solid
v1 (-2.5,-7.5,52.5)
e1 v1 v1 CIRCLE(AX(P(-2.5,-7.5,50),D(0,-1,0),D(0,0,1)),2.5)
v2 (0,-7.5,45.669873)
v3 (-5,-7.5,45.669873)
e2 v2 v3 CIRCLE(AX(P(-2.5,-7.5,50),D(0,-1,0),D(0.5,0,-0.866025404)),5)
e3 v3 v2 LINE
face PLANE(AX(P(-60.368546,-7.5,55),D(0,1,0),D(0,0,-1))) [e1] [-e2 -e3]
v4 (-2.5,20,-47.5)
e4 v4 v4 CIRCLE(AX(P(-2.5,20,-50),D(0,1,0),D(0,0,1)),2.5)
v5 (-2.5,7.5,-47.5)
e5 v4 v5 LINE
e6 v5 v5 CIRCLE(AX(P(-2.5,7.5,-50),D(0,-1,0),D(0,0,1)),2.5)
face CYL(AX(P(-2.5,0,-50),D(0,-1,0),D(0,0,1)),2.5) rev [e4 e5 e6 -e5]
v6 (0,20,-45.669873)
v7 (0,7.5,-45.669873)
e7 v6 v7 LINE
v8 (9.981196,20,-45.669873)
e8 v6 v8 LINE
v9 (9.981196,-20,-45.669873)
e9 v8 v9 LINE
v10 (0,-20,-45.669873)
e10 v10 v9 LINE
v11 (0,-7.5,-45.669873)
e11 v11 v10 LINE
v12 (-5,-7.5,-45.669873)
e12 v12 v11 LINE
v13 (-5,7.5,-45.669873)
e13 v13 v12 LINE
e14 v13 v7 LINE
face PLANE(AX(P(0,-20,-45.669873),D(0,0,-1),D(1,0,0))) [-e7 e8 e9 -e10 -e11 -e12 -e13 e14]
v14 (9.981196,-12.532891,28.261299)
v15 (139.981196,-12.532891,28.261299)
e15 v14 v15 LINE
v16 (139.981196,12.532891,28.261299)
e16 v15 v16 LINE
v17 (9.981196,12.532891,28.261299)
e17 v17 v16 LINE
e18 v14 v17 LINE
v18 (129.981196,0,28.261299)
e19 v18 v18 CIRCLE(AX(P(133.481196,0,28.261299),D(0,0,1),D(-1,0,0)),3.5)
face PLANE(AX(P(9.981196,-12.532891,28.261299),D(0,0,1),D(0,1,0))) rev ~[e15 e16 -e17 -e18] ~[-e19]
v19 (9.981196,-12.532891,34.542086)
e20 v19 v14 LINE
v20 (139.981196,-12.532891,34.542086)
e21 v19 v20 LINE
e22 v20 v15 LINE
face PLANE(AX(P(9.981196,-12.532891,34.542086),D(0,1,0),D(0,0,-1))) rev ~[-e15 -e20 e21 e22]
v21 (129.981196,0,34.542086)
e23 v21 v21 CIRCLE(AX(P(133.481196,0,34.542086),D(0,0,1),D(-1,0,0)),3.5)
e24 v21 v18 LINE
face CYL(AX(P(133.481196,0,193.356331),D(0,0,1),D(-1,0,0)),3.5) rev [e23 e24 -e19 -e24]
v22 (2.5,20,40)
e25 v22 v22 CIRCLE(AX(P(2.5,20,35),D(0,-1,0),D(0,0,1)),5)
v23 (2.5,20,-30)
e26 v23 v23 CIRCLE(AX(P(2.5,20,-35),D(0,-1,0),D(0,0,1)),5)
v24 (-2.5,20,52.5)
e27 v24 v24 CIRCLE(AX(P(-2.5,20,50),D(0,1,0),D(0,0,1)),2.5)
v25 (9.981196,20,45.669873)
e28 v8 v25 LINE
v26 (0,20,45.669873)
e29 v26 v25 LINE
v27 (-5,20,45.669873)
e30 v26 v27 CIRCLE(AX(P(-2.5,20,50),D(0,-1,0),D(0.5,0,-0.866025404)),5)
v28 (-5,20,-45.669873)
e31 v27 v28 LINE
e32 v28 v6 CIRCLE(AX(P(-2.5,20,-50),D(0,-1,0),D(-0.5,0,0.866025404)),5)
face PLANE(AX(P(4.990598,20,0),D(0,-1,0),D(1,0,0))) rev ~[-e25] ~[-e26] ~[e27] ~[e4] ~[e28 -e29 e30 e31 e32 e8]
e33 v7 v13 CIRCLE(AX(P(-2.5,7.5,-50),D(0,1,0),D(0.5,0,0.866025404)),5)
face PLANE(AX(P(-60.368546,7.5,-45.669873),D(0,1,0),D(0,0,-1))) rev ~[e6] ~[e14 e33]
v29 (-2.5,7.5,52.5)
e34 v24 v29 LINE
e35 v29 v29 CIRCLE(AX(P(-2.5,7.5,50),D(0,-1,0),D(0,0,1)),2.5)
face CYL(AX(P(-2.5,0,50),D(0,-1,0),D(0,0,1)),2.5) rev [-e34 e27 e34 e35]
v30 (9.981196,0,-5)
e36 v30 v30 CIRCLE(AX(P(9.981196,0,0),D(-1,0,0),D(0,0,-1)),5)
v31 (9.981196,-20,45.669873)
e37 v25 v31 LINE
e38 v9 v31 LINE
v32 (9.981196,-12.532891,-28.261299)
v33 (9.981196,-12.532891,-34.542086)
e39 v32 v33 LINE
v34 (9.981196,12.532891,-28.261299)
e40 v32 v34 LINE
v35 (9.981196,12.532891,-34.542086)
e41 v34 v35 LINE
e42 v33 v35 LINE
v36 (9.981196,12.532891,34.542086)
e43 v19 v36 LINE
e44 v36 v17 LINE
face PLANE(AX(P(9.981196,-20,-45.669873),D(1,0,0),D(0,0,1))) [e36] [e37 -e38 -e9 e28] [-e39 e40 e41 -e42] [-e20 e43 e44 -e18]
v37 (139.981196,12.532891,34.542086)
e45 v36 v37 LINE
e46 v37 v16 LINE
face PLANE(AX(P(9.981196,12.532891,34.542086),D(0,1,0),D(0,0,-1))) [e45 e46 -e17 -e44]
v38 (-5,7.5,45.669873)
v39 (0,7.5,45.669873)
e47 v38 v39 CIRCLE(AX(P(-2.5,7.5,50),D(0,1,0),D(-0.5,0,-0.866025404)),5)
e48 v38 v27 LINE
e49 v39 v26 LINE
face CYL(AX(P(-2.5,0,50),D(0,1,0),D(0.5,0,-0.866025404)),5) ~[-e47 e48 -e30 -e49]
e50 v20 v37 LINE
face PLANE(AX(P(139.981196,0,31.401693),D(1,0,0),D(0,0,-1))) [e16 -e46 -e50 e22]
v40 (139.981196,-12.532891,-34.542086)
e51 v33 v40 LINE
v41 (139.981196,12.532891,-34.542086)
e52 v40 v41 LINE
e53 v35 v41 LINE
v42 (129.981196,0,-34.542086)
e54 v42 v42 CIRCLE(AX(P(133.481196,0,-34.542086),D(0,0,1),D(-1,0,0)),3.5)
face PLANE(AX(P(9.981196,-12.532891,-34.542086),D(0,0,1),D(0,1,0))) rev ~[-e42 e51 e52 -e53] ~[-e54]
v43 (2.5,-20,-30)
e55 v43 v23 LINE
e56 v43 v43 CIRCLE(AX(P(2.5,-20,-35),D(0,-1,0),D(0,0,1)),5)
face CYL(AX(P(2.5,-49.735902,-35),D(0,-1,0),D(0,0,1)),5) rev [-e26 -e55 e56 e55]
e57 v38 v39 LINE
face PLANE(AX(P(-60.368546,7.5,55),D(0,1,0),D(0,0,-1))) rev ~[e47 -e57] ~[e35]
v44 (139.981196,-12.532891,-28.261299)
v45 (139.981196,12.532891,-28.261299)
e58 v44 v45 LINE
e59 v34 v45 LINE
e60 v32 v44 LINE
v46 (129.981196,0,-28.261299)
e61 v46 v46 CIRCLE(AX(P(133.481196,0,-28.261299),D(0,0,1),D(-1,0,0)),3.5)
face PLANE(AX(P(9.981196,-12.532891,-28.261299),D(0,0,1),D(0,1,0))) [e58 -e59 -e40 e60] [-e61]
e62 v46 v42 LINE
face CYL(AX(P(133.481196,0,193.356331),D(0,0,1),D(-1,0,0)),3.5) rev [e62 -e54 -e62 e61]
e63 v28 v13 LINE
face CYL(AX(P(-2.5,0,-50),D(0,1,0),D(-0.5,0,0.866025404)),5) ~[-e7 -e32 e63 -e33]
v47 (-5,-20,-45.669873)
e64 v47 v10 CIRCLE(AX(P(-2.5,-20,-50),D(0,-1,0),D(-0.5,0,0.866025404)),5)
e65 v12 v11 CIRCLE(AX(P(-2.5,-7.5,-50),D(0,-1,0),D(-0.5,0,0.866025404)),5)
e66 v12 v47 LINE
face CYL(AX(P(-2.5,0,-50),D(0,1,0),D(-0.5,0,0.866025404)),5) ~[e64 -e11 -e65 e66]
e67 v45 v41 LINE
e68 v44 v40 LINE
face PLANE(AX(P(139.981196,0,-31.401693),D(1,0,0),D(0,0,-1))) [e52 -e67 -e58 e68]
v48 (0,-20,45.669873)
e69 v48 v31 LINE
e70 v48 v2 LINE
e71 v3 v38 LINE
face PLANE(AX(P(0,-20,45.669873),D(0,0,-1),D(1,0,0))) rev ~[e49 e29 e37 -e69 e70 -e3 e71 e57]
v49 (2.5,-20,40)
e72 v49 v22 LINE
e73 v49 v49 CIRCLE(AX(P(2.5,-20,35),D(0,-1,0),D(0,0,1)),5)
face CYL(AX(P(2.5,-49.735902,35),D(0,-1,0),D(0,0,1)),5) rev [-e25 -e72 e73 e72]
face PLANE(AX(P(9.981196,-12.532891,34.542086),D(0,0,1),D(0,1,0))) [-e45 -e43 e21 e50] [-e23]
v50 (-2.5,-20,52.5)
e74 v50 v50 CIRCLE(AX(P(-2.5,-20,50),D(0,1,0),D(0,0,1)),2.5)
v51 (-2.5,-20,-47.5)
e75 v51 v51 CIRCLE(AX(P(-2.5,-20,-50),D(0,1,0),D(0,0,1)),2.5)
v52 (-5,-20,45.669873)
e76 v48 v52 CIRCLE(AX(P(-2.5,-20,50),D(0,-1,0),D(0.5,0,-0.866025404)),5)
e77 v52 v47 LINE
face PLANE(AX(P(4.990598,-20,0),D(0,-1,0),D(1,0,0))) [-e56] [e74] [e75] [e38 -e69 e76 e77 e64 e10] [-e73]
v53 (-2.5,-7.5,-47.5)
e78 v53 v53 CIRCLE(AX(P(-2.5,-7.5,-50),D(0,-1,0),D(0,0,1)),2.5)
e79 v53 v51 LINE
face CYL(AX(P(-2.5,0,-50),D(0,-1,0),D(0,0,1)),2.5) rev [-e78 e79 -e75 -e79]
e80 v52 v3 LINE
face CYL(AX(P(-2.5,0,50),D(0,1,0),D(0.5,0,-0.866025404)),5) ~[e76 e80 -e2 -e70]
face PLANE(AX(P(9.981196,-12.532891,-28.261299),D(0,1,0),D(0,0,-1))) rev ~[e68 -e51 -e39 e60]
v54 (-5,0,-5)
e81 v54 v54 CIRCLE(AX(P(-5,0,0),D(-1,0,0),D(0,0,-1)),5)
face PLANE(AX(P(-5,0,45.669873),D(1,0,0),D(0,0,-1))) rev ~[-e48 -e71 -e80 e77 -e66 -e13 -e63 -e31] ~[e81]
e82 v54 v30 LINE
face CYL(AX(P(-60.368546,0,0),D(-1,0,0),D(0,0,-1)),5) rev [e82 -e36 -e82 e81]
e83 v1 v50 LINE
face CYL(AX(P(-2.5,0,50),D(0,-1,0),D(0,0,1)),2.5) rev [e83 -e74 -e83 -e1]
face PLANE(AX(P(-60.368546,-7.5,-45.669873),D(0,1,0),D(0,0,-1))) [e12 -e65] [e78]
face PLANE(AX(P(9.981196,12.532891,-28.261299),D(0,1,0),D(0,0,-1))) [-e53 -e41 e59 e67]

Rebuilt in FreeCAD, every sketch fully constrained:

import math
import FreeCAD as App
import Part
import Sketcher
from FreeCAD import Vector


def add_polygon(sketch, points):
    """Adds a closed chain of lines whose ends are joined by coincident constraints."""
    first, n = sketch.GeometryCount, len(points)
    for a, b in zip(points, points[1:] + points[:1]):
        sketch.addGeometry(Part.LineSegment(App.Vector(*a, 0), App.Vector(*b, 0)), False)
    for i in range(n):
        sketch.addConstraint(Sketcher.Constraint("Coincident", first + i, 2, first + (i + 1) % n, 1))

doc = App.newDocument("Part")
body = doc.addObject("PartDesign::Body", "Body")

# Sketch on XZ plane
sketch1 = body.newObject("Sketcher::SketchObject", "Sketch")
sketch1.AttachmentSupport = (doc.getObject("XZ_Plane"), [""])
sketch1.MapMode = "FlatFace"
sketch1.addGeometry([
    Part.LineSegment(Vector(-5, -45.669873, 0), Vector(-5, 45.669873, 0)),  # 0
    Part.ArcOfCircle(Part.Circle(Vector(-2.5, 50, 0), Vector(0, 0, 1), 5), math.radians(-60), math.radians(240)),  # 1
    Part.LineSegment(Vector(0, 45.669873, 0), Vector(0, -45.669873, 0)),  # 2
    Part.ArcOfCircle(Part.Circle(Vector(-2.5, -50, 0), Vector(0, 0, 1), 5), math.radians(120), math.radians(420)),  # 3
    Part.Circle(Vector(-2.5, 50, 0), Vector(0, 0, 1), 2.5),  # 4
    Part.Circle(Vector(-2.5, -50, 0), Vector(0, 0, 1), 2.5),  # 5
], False)
sketch1.addConstraint([
    Sketcher.Constraint("Coincident", 0, 2, 1, 2),
    Sketcher.Constraint("Coincident", 1, 1, 2, 1),
    Sketcher.Constraint("Coincident", 2, 2, 3, 2),
    Sketcher.Constraint("Coincident", 3, 1, 0, 1),
    Sketcher.Constraint("Vertical", 0),
    Sketcher.Constraint("Vertical", 2),
    Sketcher.Constraint("Coincident", 4, 3, 1, 3),
    Sketcher.Constraint("Coincident", 5, 3, 3, 3),
    Sketcher.Constraint("Equal", 1, 3),
    Sketcher.Constraint("Equal", 4, 5),
    Sketcher.Constraint("Symmetric", 1, 1, 2, 2, -1, 1),
    Sketcher.Constraint("Horizontal", 0, 2, 1, 1),
    Sketcher.Constraint("Horizontal", 2, 2, 3, 1),
    Sketcher.Constraint("Diameter", 4, 5.0),
    Sketcher.Constraint("Radius", 1, 5.0),
    Sketcher.Constraint("DistanceY", -1, 1, 1, 3, 50.0),
    Sketcher.Constraint("DistanceX", 0, 2, -1, 1, 5.0),
])
pad1 = body.newObject("PartDesign::Pad", "Pad")
pad1.Profile = sketch1
pad1.Length = 40
pad1.Midplane = True

# Sketch on XZ plane
sketch2 = body.newObject("Sketcher::SketchObject", "Sketch001")
sketch2.AttachmentSupport = (doc.getObject("XZ_Plane"), [""])
sketch2.MapMode = "FlatFace"
sketch2.AttachmentOffset = App.Placement(Vector(0, 0, 20), App.Rotation())
add_polygon(sketch2, [(0, 45.669873), (0, -45.669873), (9.981196, -45.669873), (9.981196, 45.669873)])  # lines 0-3
sketch2.addConstraint([
    Sketcher.Constraint("Vertical", 0),
    Sketcher.Constraint("Horizontal", 1),
    Sketcher.Constraint("Vertical", 2),
    Sketcher.Constraint("Horizontal", 3),
    Sketcher.Constraint("Symmetric", 0, 2, 3, 2, -1, 1),
    Sketcher.Constraint("DistanceX", 1, 1, 1, 2, 9.981196),
    Sketcher.Constraint("DistanceY", 0, 2, 0, 1, 91.339746),
])
pad2 = body.newObject("PartDesign::Pad", "Pad001")
pad2.Profile = sketch2
pad2.Length = 40
pad2.Reversed = True

# Sketch on XZ plane
sketch3 = body.newObject("Sketcher::SketchObject", "Sketch002")
sketch3.AttachmentSupport = (doc.getObject("XZ_Plane"), [""])
sketch3.MapMode = "FlatFace"
sketch3.AttachmentOffset = App.Placement(Vector(0, 0, -20), App.Rotation())
sketch3.addGeometry([
    Part.Circle(Vector(2.5, -35, 0), Vector(0, 0, 1), 5),
    Part.Circle(Vector(2.5, 35, 0), Vector(0, 0, 1), 5),
], False)
sketch3.addConstraint([
    Sketcher.Constraint("Equal", 0, 1),
    Sketcher.Constraint("Symmetric", 0, 3, 1, 3, -1),
    Sketcher.Constraint("Diameter", 0, 10.0),
    Sketcher.Constraint("DistanceY", 0, 3, -1, 1, 35.0),
    Sketcher.Constraint("DistanceX", -1, 1, 0, 3, 2.5),
])
pocket1 = body.newObject("PartDesign::Pocket", "Pocket")
pocket1.Profile = sketch3
pocket1.Type = "ThroughAll"
pocket1.Midplane = True

# Sketch on YZ plane
sketch4 = body.newObject("Sketcher::SketchObject", "Sketch003")
sketch4.AttachmentSupport = (doc.getObject("YZ_Plane"), [""])
sketch4.MapMode = "FlatFace"
sketch4.addGeometry(Part.Circle(Vector(0, 0, 0), Vector(0, 0, 1), 5), False)  # 0
add_polygon(sketch4, [(7.5, -45.669873), (-7.5, -45.669873), (-7.5, -55), (7.5, -55)])  # lines 1-4
add_polygon(sketch4, [(7.5, 55), (-7.5, 55), (-7.5, 45.669873), (7.5, 45.669873)])  # lines 5-8
sketch4.addConstraint([
    Sketcher.Constraint("Horizontal", 1),
    Sketcher.Constraint("Vertical", 2),
    Sketcher.Constraint("Horizontal", 3),
    Sketcher.Constraint("Vertical", 4),
    Sketcher.Constraint("Horizontal", 5),
    Sketcher.Constraint("Vertical", 6),
    Sketcher.Constraint("Horizontal", 7),
    Sketcher.Constraint("Vertical", 8),
    Sketcher.Constraint("Coincident", 0, 3, -1, 1),
    Sketcher.Constraint("Symmetric", 3, 2, 5, 2, -1, 1),
    Sketcher.Constraint("Symmetric", 1, 2, 7, 2, -1, 1),
    Sketcher.Constraint("Vertical", 2, 2, 5, 2),
    Sketcher.Constraint("Diameter", 0, 10.0),
    Sketcher.Constraint("DistanceX", 1, 2, 1, 1, 15.0),
    Sketcher.Constraint("DistanceY", 2, 2, -1, 1, 55.0),
    Sketcher.Constraint("DistanceY", 2, 2, 2, 1, 9.330127),
])
pocket2 = body.newObject("PartDesign::Pocket", "Pocket001")
pocket2.Profile = sketch4
pocket2.Type = "ThroughAll"
pocket2.Midplane = True

# Sketch on YZ plane
sketch5 = body.newObject("Sketcher::SketchObject", "Sketch004")
sketch5.AttachmentSupport = (doc.getObject("YZ_Plane"), [""])
sketch5.MapMode = "FlatFace"
sketch5.AttachmentOffset = App.Placement(Vector(0, 0, 9.981196), App.Rotation())
add_polygon(sketch5, [(12.532891, 34.542086), (-12.532891, 34.542086), (-12.532891, 28.261299), (12.532891, 28.261299)])  # lines 0-3
add_polygon(sketch5, [(12.532891, -28.261299), (-12.532891, -28.261299), (-12.532891, -34.542086), (12.532891, -34.542086)])  # lines 4-7
sketch5.addConstraint([
    Sketcher.Constraint("Horizontal", 0),
    Sketcher.Constraint("Vertical", 1),
    Sketcher.Constraint("Horizontal", 2),
    Sketcher.Constraint("Vertical", 3),
    Sketcher.Constraint("Horizontal", 4),
    Sketcher.Constraint("Vertical", 5),
    Sketcher.Constraint("Horizontal", 6),
    Sketcher.Constraint("Vertical", 7),
    Sketcher.Constraint("Symmetric", 2, 2, 4, 2, -1, 1),
    Sketcher.Constraint("Symmetric", 0, 2, 6, 2, -1, 1),
    Sketcher.Constraint("Vertical", 1, 2, 4, 2),
    Sketcher.Constraint("DistanceX", 0, 2, 0, 1, 25.065782),
    Sketcher.Constraint("DistanceY", -1, 1, 1, 2, 28.261299),
    Sketcher.Constraint("DistanceY", 1, 2, 1, 1, 6.280786),
])
pad3 = body.newObject("PartDesign::Pad", "Pad002")
pad3.Profile = sketch5
pad3.Length = 130

# Sketch on XY plane
sketch6 = body.newObject("Sketcher::SketchObject", "Sketch005")
sketch6.AttachmentSupport = (doc.getObject("XY_Plane"), [""])
sketch6.MapMode = "FlatFace"
sketch6.AttachmentOffset = App.Placement(Vector(0, 0, 28.261299), App.Rotation())
sketch6.addGeometry(Part.Circle(Vector(133.481196, 0, 0), Vector(0, 0, 1), 3.5), False)
sketch6.addConstraint([
    Sketcher.Constraint("PointOnObject", 0, 3, -1),
    Sketcher.Constraint("Diameter", 0, 7.0),
    Sketcher.Constraint("DistanceX", -1, 1, 0, 3, 133.481196),
])
pocket3 = body.newObject("PartDesign::Pocket", "Pocket002")
pocket3.Profile = sketch6
pocket3.Type = "ThroughAll"
pocket3.Midplane = True

doc.recompute()
